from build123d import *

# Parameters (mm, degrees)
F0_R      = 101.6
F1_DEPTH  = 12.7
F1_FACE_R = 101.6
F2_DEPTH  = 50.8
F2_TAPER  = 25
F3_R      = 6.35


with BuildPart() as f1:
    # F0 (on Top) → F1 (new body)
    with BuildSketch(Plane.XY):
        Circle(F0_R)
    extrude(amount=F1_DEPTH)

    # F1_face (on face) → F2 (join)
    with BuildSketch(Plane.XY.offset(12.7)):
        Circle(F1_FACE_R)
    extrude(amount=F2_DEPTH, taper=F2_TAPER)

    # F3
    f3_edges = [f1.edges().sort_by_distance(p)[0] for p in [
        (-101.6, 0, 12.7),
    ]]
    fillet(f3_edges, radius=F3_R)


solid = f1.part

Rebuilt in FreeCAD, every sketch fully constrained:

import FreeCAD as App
import Part
import Sketcher
from FreeCAD import Vector
Q = App.Units.Quantity


def edges_at(feature, points):
    """Names of the edges that pass closest to the given points."""
    edges = feature.Shape.Edges
    near = lambda p: min(range(len(edges)), key=lambda i: edges[i].distToShape(Part.Vertex(*p))[0])
    return sorted({f"Edge{near(p) + 1}" for p in points})

doc = App.newDocument("Part")
params = doc.addObject("Spreadsheet::Sheet", "Params")
for row, (alias, value) in enumerate([
    ("sketch1_diameter", "8 in"),
    ("pad1_length", "0.5 in"),
    ("sketch2_diameter", "8 in"),
    ("pad2_length", "2 in"),
    ("pad2_taper", "-25 deg"),
    ("fillet_radius", "0.25 in"),
], start=1):
    params.set(f"A{row}", alias)
    params.set(f"B{row}", "=" + value)
    params.setAlias(f"B{row}", alias)

body = doc.addObject("PartDesign::Body", "Body")

sketch1 = body.newObject("Sketcher::SketchObject", "Sketch")
sketch1.AttachmentSupport = (doc.getObject("XY_Plane"), [""])
sketch1.MapMode = "FlatFace"
sketch1.addGeometry(Part.Circle(Vector(0, 0, 0), Vector(0, 0, 1), 101.6), False)
sketch1.addConstraint(Sketcher.Constraint("Coincident", 0, 3, -1, 1))
sketch1.addConstraint(Sketcher.Constraint("Diameter", 0, Q("8 in")))
sketch1.setExpression("Constraints[1]", "Params.sketch1_diameter")
pad1 = body.newObject("PartDesign::Pad", "Pad")
pad1.Profile = sketch1
pad1.setExpression("Length", "Params.pad1_length")

sketch2 = body.newObject("Sketcher::SketchObject", "Sketch001")
sketch2.AttachmentSupport = (doc.getObject("XY_Plane"), [""])
sketch2.MapMode = "FlatFace"
sketch2.AttachmentOffset = App.Placement(Vector(0, 0, 0.5 * 25.4), App.Rotation())
sketch2.addGeometry(Part.Circle(Vector(0, 0, 0), Vector(0, 0, 1), 101.6), False)
sketch2.addConstraint(Sketcher.Constraint("Coincident", 0, 3, -1, 1))
sketch2.addConstraint(Sketcher.Constraint("Diameter", 0, Q("8 in")))
sketch2.setExpression("Constraints[1]", "Params.sketch2_diameter")
pad2 = body.newObject("PartDesign::Pad", "Pad001")
pad2.Profile = sketch2
pad2.setExpression("Length", "Params.pad2_length")
pad2.setExpression("TaperAngle", "Params.pad2_taper")
doc.recompute()

fillet = body.newObject("PartDesign::Fillet", "Fillet")
fillet.Base = (pad2, edges_at(pad2, [(-101.6, 0, 12.7)]))
fillet.setExpression("Radius", "Params.fillet_radius")

doc.recompute()
